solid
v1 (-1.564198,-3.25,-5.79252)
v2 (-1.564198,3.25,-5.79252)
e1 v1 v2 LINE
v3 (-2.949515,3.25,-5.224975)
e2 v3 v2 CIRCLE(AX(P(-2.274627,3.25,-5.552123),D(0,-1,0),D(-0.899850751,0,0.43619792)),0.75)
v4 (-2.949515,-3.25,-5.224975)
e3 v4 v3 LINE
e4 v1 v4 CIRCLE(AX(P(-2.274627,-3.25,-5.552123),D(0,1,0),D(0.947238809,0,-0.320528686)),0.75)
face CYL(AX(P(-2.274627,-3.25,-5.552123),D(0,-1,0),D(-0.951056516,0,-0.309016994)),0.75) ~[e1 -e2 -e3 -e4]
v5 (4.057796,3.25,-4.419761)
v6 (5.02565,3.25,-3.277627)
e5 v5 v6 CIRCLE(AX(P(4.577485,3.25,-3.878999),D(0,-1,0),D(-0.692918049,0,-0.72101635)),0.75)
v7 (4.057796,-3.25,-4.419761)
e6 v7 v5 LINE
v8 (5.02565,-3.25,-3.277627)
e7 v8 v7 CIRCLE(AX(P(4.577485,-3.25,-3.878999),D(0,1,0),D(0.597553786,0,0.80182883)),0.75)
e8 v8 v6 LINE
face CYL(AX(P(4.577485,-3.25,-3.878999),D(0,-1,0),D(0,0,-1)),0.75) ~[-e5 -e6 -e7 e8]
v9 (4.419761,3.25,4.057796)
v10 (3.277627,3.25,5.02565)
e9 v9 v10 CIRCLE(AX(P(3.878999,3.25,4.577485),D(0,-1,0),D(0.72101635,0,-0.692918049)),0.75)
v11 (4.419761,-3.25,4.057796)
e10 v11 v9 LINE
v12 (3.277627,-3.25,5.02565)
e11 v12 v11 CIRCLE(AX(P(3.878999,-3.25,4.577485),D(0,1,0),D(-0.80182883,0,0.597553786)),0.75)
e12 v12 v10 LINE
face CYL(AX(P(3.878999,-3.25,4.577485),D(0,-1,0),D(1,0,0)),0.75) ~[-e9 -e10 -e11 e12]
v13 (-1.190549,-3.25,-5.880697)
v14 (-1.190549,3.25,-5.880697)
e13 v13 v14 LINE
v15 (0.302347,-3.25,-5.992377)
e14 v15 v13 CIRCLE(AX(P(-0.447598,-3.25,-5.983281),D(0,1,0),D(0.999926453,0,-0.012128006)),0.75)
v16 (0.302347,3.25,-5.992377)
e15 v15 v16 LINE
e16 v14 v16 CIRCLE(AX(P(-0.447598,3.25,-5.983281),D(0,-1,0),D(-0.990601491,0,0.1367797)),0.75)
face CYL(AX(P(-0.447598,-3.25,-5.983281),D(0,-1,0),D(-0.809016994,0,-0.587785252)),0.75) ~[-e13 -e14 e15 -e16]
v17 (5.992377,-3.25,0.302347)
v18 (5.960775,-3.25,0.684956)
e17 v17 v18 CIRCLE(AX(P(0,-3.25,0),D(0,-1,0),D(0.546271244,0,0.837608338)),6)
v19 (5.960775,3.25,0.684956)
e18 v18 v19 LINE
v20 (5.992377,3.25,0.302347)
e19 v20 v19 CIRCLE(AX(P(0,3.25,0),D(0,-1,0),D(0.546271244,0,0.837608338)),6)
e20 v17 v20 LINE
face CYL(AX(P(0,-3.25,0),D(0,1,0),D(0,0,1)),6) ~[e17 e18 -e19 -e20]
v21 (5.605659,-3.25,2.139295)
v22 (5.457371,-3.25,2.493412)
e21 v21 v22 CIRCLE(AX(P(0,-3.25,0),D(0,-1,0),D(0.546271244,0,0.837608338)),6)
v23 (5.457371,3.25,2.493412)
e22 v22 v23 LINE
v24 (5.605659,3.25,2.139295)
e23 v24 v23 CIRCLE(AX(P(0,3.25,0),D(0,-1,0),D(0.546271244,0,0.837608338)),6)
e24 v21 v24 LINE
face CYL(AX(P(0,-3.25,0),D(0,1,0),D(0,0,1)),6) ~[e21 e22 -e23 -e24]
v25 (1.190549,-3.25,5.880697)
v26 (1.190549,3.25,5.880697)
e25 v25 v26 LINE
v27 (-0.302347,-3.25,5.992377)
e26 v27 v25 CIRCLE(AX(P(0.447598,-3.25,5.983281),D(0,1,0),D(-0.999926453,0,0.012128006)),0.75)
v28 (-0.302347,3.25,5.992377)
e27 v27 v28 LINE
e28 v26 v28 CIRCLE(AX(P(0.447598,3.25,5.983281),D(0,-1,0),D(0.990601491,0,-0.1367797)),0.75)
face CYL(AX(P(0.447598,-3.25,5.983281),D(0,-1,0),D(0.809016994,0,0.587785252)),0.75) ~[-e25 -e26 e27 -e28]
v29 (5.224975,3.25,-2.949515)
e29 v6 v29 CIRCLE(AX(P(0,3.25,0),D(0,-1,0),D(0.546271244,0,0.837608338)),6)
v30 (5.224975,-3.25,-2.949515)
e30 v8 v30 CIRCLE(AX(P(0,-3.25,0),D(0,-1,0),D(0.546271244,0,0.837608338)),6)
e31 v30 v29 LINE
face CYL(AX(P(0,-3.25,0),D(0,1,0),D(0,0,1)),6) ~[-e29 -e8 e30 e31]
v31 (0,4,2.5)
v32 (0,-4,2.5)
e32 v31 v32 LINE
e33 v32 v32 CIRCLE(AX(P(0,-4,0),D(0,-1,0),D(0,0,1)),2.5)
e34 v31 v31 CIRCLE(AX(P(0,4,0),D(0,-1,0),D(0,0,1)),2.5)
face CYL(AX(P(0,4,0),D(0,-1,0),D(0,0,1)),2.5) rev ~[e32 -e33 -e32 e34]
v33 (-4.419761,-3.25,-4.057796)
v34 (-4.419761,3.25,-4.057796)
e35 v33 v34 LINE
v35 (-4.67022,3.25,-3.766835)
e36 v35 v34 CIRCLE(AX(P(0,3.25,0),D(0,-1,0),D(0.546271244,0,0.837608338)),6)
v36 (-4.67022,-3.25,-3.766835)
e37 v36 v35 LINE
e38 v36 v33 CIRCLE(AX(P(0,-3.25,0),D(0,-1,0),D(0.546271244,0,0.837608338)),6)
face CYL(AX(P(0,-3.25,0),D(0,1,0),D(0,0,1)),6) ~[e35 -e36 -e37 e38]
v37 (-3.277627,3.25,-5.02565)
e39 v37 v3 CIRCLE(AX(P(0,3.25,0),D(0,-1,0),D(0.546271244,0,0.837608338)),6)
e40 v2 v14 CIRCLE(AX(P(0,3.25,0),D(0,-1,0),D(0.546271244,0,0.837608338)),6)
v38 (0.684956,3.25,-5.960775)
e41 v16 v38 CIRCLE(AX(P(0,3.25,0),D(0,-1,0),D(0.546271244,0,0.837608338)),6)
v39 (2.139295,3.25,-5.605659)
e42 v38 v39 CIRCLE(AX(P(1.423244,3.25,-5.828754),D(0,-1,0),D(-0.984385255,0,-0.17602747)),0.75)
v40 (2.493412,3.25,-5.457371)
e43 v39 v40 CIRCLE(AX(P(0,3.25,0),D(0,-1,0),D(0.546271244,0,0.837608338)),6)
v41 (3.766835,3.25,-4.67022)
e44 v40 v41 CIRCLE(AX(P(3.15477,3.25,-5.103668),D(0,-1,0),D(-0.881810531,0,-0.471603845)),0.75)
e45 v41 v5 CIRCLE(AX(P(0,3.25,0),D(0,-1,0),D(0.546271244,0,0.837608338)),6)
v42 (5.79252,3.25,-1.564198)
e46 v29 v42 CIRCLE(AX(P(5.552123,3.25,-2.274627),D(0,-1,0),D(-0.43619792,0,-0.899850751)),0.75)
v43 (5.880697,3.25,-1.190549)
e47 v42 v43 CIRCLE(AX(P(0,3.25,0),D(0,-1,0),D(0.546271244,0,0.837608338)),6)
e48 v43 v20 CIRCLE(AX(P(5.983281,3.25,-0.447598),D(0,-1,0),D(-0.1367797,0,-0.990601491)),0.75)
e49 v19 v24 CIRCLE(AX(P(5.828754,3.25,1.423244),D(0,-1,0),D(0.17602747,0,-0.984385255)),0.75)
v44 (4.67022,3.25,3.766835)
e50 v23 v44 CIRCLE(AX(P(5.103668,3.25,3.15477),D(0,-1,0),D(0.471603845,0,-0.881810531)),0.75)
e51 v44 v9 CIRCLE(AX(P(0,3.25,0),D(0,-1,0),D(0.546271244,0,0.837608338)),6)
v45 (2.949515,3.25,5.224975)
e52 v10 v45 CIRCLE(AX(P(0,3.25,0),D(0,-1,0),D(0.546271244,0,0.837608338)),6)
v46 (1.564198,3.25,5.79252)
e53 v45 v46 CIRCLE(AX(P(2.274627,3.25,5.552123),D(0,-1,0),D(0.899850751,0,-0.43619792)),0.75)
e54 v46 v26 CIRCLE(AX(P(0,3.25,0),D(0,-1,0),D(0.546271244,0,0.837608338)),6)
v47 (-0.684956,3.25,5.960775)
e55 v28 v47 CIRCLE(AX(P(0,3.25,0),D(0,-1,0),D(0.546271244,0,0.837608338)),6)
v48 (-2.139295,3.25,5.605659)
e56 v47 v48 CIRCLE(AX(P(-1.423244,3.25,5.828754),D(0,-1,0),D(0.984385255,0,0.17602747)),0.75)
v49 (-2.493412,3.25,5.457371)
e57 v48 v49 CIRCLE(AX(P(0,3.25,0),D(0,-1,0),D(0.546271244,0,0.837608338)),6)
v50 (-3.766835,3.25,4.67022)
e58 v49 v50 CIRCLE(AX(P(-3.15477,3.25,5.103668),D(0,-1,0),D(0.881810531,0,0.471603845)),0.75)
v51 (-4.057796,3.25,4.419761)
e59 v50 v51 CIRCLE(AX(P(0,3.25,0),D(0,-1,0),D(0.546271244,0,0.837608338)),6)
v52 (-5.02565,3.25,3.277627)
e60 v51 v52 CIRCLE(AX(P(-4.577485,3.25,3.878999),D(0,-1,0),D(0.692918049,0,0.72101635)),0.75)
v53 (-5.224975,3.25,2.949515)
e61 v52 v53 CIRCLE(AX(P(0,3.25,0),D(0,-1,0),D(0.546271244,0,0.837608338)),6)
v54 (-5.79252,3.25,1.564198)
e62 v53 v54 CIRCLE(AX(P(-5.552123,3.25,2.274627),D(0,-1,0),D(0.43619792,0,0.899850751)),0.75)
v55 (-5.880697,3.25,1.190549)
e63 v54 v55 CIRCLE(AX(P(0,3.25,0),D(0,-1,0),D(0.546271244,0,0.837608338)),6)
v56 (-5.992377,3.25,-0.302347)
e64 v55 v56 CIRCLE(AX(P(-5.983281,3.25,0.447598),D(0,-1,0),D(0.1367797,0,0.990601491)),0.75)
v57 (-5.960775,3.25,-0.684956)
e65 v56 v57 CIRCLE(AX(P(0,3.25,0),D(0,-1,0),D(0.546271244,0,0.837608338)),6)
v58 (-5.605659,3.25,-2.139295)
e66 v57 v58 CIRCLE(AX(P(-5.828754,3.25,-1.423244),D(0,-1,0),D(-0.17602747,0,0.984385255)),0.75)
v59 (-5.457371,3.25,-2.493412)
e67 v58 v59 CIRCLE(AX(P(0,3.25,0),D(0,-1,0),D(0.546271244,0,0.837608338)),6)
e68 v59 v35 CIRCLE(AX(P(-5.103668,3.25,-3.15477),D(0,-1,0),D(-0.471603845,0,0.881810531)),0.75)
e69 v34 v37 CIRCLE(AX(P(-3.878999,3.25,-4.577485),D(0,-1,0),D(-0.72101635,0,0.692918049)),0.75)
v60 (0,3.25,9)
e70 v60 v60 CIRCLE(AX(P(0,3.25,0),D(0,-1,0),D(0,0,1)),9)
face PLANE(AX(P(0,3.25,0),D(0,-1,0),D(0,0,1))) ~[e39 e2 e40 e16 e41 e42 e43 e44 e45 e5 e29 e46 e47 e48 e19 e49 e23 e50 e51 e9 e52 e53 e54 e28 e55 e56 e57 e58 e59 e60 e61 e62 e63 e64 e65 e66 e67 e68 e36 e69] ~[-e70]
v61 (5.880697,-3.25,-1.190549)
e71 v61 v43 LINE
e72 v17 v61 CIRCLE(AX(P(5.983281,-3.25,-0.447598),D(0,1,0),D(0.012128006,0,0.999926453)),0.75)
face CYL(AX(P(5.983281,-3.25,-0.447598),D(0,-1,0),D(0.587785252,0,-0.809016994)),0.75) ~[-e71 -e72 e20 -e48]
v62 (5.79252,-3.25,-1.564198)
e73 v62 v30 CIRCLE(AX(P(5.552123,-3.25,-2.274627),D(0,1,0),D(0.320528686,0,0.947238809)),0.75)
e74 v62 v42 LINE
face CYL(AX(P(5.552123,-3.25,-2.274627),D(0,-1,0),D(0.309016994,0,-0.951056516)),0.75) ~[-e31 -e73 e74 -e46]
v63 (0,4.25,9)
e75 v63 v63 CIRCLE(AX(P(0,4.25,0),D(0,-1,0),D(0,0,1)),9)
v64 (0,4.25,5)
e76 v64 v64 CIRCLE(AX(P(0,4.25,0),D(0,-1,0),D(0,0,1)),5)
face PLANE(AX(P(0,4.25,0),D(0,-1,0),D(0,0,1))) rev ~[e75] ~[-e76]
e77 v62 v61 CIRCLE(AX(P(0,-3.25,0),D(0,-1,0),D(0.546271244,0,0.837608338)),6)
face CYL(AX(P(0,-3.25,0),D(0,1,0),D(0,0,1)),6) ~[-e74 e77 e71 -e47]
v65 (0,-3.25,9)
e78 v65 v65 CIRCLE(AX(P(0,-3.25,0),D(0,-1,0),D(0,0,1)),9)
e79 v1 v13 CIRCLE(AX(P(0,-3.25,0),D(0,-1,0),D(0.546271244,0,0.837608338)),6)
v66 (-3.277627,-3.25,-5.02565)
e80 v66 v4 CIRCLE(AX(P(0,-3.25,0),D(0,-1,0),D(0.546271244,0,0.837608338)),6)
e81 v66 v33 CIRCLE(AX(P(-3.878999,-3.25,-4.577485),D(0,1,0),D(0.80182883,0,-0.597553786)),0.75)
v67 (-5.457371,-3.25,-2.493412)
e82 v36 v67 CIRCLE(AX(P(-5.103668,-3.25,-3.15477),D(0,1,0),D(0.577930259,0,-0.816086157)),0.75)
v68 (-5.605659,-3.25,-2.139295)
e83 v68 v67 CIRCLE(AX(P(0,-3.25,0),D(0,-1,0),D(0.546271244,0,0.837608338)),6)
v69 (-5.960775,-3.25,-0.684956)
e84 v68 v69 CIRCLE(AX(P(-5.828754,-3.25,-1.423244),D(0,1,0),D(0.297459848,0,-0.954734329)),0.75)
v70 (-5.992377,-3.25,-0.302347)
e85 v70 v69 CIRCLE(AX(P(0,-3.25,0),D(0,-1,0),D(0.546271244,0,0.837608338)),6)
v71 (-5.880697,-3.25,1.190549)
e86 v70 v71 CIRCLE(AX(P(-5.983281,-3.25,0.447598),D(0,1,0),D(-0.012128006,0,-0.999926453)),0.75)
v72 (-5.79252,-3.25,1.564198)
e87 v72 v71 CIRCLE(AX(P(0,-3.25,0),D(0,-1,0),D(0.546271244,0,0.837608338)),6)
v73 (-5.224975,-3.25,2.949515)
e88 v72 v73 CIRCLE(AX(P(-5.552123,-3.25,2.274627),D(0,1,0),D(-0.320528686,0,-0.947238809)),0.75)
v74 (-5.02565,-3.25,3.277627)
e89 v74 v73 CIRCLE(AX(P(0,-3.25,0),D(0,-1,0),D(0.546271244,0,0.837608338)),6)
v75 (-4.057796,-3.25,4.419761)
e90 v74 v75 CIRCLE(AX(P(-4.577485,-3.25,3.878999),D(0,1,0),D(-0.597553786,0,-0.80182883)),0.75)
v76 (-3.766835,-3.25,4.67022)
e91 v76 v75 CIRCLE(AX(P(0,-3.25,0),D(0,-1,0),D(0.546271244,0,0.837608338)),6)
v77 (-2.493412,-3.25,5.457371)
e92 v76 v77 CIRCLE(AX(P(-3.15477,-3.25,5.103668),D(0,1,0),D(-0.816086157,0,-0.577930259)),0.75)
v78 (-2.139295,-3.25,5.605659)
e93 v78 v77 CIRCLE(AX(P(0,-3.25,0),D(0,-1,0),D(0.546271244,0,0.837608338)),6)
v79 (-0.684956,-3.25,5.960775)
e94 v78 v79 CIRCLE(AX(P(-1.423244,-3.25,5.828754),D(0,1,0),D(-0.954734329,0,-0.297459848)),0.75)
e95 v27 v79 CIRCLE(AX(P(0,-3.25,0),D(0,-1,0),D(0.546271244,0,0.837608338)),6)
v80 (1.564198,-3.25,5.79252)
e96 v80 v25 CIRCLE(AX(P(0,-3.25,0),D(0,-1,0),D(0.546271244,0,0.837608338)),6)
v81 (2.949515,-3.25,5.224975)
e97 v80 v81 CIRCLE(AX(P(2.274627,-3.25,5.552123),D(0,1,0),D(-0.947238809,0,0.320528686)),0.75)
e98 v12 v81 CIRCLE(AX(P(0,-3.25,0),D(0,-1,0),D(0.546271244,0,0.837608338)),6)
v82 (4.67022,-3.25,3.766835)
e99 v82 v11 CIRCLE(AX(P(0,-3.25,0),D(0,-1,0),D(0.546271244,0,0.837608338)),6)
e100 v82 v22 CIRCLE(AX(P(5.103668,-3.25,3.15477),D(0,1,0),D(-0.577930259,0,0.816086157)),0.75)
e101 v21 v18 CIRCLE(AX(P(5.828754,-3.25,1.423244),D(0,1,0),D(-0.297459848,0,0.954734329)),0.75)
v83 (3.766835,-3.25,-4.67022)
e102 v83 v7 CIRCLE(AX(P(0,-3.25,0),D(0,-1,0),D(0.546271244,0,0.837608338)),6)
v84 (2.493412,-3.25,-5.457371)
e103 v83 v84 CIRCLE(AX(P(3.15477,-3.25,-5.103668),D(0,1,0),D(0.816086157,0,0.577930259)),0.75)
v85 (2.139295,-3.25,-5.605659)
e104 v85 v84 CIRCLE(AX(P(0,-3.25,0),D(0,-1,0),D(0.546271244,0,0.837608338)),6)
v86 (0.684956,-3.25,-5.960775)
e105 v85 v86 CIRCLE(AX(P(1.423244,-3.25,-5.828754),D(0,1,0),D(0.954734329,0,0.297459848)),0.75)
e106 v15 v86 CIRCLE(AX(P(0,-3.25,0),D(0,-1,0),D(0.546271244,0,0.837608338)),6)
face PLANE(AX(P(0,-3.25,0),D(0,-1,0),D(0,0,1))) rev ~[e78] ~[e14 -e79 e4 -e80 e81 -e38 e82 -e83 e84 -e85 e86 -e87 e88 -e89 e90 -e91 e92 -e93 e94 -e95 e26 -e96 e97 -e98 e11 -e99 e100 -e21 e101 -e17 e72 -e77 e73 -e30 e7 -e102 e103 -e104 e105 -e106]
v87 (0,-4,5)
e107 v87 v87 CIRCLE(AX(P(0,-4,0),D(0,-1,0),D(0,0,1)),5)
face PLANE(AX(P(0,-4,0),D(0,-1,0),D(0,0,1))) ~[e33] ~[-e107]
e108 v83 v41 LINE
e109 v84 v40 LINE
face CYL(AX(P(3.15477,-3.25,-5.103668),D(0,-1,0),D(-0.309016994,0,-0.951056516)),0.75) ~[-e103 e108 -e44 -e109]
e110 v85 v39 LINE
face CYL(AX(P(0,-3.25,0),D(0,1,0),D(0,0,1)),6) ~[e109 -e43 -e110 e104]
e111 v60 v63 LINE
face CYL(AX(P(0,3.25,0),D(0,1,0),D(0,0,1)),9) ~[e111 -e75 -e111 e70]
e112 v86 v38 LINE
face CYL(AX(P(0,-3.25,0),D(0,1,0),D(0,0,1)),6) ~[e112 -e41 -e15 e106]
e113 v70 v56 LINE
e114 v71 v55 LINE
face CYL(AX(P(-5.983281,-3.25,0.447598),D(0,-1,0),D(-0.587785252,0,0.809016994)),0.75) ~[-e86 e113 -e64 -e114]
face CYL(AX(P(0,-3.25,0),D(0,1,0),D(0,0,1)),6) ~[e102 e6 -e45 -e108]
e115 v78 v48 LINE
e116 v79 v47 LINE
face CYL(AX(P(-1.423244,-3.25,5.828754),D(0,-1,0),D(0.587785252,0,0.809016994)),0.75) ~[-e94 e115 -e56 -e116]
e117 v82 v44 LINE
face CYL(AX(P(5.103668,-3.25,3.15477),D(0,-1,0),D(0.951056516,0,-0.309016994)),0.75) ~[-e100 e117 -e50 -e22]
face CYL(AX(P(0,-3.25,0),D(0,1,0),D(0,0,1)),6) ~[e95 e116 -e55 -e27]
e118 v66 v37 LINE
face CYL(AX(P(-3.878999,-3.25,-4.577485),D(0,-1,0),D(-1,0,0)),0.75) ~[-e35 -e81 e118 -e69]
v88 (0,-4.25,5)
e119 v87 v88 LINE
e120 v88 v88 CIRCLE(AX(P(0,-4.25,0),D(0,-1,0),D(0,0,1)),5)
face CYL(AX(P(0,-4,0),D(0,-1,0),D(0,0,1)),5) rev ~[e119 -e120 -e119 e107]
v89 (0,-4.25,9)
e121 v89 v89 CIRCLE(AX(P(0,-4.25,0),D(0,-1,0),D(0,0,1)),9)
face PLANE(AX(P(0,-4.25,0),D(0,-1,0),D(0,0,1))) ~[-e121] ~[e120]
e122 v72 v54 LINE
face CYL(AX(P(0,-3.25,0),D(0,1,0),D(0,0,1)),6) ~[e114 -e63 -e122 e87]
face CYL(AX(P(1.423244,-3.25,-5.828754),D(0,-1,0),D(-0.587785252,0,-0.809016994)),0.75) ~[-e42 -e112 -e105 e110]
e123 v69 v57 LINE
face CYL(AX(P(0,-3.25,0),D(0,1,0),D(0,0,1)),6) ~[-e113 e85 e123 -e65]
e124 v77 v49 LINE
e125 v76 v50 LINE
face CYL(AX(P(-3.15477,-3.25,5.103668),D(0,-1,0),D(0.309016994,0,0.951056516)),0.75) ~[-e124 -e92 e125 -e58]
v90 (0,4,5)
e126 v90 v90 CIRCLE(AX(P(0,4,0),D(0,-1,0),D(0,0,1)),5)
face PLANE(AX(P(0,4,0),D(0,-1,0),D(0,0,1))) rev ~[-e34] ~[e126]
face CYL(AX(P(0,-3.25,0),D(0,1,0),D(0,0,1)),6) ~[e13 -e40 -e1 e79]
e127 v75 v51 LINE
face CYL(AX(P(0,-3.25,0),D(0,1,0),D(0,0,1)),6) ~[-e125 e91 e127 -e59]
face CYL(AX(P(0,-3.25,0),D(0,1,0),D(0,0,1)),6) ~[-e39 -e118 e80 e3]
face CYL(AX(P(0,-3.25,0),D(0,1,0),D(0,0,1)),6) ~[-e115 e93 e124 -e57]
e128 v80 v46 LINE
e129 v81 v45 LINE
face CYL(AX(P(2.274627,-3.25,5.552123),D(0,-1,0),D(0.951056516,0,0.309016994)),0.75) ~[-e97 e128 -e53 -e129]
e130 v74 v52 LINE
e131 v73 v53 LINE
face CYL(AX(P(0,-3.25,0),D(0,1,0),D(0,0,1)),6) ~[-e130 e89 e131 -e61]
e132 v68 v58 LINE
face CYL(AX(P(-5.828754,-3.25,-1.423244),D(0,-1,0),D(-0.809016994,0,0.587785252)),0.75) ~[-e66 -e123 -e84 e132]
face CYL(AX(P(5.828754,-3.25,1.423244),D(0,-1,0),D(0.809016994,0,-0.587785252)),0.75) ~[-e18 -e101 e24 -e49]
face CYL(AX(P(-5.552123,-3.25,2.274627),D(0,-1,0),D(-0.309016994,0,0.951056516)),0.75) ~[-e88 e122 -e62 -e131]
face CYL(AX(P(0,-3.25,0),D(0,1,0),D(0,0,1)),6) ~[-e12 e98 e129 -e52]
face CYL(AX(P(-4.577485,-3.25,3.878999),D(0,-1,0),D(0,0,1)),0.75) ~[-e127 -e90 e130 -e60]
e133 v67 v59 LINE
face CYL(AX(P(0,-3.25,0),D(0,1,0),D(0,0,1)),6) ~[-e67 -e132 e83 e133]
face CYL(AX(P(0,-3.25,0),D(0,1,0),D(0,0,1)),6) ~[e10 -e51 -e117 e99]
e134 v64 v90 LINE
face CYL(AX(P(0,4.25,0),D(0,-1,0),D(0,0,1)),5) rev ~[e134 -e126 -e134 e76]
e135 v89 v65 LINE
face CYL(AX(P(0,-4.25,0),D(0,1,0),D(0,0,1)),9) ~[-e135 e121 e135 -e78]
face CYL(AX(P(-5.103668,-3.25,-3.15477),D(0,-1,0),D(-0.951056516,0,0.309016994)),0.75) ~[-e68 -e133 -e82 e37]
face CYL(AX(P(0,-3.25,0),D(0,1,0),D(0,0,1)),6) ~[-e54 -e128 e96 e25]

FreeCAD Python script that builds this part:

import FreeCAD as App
import Part
import Sketcher

doc = App.newDocument("Part")
body = doc.addObject("PartDesign::Body", "Body")

sketch1 = doc.addObject("Sketcher::SketchObject", "Sketch")
body.addObject(sketch1)
sketch1.AttachmentSupport = (doc.XY_Plane, [""])
sketch1.MapMode = "FlatFace"
sketch1.addGeometry([
    Part.LineSegment(App.Vector(-5, 4.25, 0), App.Vector(-9, 4.25, 0)),
    Part.LineSegment(App.Vector(-9, 4.25, 0), App.Vector(-9, 3.25, 0)),
    Part.LineSegment(App.Vector(-9, 3.25, 0), App.Vector(-6, 3.25, 0)),
    Part.LineSegment(App.Vector(-6, 3.25, 0), App.Vector(-6, -3.25, 0)),
    Part.LineSegment(App.Vector(-6, -3.25, 0), App.Vector(-9, -3.25, 0)),
    Part.LineSegment(App.Vector(-9, -3.25, 0), App.Vector(-9, -4.25, 0)),
    Part.LineSegment(App.Vector(-9, -4.25, 0), App.Vector(-5, -4.25, 0)),
    Part.LineSegment(App.Vector(-5, -4.25, 0), App.Vector(-5, -4, 0)),
    Part.LineSegment(App.Vector(-5, -4, 0), App.Vector(-2.5, -4, 0)),
    Part.LineSegment(App.Vector(-2.5, -4, 0), App.Vector(-2.5, 4, 0)),
    Part.LineSegment(App.Vector(-2.5, 4, 0), App.Vector(-5, 4, 0)),
    Part.LineSegment(App.Vector(-5, 4, 0), App.Vector(-5, 4.25, 0)),
], False)
sketch1.addConstraint([
    Sketcher.Constraint("Coincident", 0, 2, 1, 1),
    Sketcher.Constraint("Coincident", 1, 2, 2, 1),
    Sketcher.Constraint("Coincident", 2, 2, 3, 1),
    Sketcher.Constraint("Coincident", 3, 2, 4, 1),
    Sketcher.Constraint("Coincident", 4, 2, 5, 1),
    Sketcher.Constraint("Coincident", 5, 2, 6, 1),
    Sketcher.Constraint("Coincident", 6, 2, 7, 1),
    Sketcher.Constraint("Coincident", 7, 2, 8, 1),
    Sketcher.Constraint("Coincident", 8, 2, 9, 1),
    Sketcher.Constraint("Coincident", 9, 2, 10, 1),
    Sketcher.Constraint("Coincident", 10, 2, 11, 1),
    Sketcher.Constraint("Coincident", 11, 2, 0, 1),
    Sketcher.Constraint("Horizontal", 0),
    Sketcher.Constraint("Vertical", 1),
    Sketcher.Constraint("Horizontal", 2),
    Sketcher.Constraint("Vertical", 3),
    Sketcher.Constraint("Horizontal", 4),
    Sketcher.Constraint("Vertical", 5),
    Sketcher.Constraint("Horizontal", 6),
    Sketcher.Constraint("Vertical", 7),
    Sketcher.Constraint("Horizontal", 8),
    Sketcher.Constraint("Vertical", 9),
    Sketcher.Constraint("Horizontal", 10),
    Sketcher.Constraint("Vertical", 11),
    Sketcher.Constraint("Symmetric", 1, 2, 4, 2, -1),
    Sketcher.Constraint("Symmetric", 7, 2, 10, 2, -1),
    Sketcher.Constraint("Equal", 1, 5),
    Sketcher.Constraint("DistanceX", 0, 2, 0, 1, 4.0),
    Sketcher.Constraint("DistanceX", 2, 1, 2, 2, 3.0),
    Sketcher.Constraint("DistanceY", 1, 2, 1, 1, 1.0),
    Sketcher.Constraint("DistanceY", 9, 1, 9, 2, 8.0),
    Sketcher.Constraint("DistanceX", 8, 1, 8, 2, 2.5),
    Sketcher.Constraint("DistanceY", 3, 2, 3, 1, 6.5),
    Sketcher.Constraint("DistanceX", 0, 2, -1, 1, 9.0),
])
revolution = doc.addObject("PartDesign::Revolution", "Revolution")
body.addObject(revolution)
revolution.Profile = sketch1
revolution.ReferenceAxis = (sketch1, ["V_Axis"])
revolution.Angle = 360

sketch2 = doc.addObject("Sketcher::SketchObject", "Sketch001")
body.addObject(sketch2)
sketch2.AttachmentSupport = (doc.XZ_Plane, [""])
sketch2.MapMode = "FlatFace"
sketch2.AttachmentOffset = App.Placement(App.Vector(0, 0, 3.25), App.Rotation())
sketch2.addGeometry(Part.Circle(App.Vector(3.9, 4.6, 0), App.Vector(0, 0, 1), 0.8), False)
sketch2.addConstraint([
    Sketcher.Constraint("Diameter", 0, 1.5),
    Sketcher.Constraint("DistanceX", -1, 1, 0, 3, 3.878999),
    Sketcher.Constraint("DistanceY", -1, 1, 0, 3, 4.577485),
])
pad1 = doc.addObject("PartDesign::Pad", "Pad")
body.addObject(pad1)
pad1.Profile = sketch2
pad1.Length = 7
pad1.Reversed = True
doc.recompute()

polarpattern = doc.addObject("PartDesign::PolarPattern", "PolarPattern")
body.addObject(polarpattern)
polarpattern.Originals = [pad1]
polarpattern.Axis = (doc.Y_Axis, [""])
polarpattern.Angle = 360
polarpattern.Occurrences = 20
body.Tip = polarpattern

doc.recompute()
